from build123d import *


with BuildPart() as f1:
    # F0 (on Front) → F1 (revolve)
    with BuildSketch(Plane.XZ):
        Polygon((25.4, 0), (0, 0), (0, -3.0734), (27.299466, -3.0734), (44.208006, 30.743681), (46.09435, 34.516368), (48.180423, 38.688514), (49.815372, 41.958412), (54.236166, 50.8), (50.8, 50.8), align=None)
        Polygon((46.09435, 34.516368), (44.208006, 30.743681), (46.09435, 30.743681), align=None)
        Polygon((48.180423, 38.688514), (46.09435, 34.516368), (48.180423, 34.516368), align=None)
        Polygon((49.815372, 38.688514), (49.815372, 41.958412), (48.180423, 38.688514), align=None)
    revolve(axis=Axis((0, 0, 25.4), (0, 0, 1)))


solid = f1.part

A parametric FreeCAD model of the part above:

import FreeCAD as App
import Part
import Sketcher

V = App.Vector
Q = App.Units.Quantity

doc = App.newDocument("Part")
body = doc.addObject("PartDesign::Body", "Body")

sketch1 = body.newObject("Sketcher::SketchObject", "Sketch")
sketch1.AttachmentSupport = (doc.getObject("XZ_Plane"), [""])
sketch1.MapMode = "FlatFace"
sketch1.addGeometry(Part.LineSegment(V(25.4, 0, 0), V(0, 0, 0)), False)
sketch1.addGeometry(Part.LineSegment(V(0, 0, 0), V(0, -3.0734, 0)), False)
sketch1.addGeometry(Part.LineSegment(V(0, -3.0734, 0), V(27.299466, -3.0734, 0)), False)
sketch1.addGeometry(Part.LineSegment(V(27.299466, -3.0734, 0), V(44.208006, 30.743681, 0)), False)
sketch1.addGeometry(Part.LineSegment(V(44.208006, 30.743681, 0), V(46.09435, 30.743681, 0)), False)
sketch1.addGeometry(Part.LineSegment(V(46.09435, 30.743681, 0), V(46.09435, 34.516368, 0)), False)
sketch1.addGeometry(Part.LineSegment(V(46.09435, 34.516368, 0), V(48.180423, 34.516368, 0)), False)
sketch1.addGeometry(Part.LineSegment(V(48.180423, 34.516368, 0), V(48.180423, 38.688514, 0)), False)
sketch1.addGeometry(Part.LineSegment(V(48.180423, 38.688514, 0), V(49.815372, 38.688514, 0)), False)
sketch1.addGeometry(Part.LineSegment(V(49.815372, 38.688514, 0), V(49.815372, 41.958412, 0)), False)
sketch1.addGeometry(Part.LineSegment(V(49.815372, 41.958412, 0), V(54.236166, 50.8, 0)), False)
sketch1.addGeometry(Part.LineSegment(V(54.236166, 50.8, 0), V(50.8, 50.8, 0)), False)
sketch1.addGeometry(Part.LineSegment(V(50.8, 50.8, 0), V(25.4, 0, 0)), False)
sketch1.addConstraint(Sketcher.Constraint("Coincident", 0, 2, 1, 1))
sketch1.addConstraint(Sketcher.Constraint("Coincident", 1, 2, 2, 1))
sketch1.addConstraint(Sketcher.Constraint("Coincident", 2, 2, 3, 1))
sketch1.addConstraint(Sketcher.Constraint("Coincident", 3, 2, 4, 1))
sketch1.addConstraint(Sketcher.Constraint("Coincident", 4, 2, 5, 1))
sketch1.addConstraint(Sketcher.Constraint("Coincident", 5, 2, 6, 1))
sketch1.addConstraint(Sketcher.Constraint("Coincident", 6, 2, 7, 1))
sketch1.addConstraint(Sketcher.Constraint("Coincident", 7, 2, 8, 1))
sketch1.addConstraint(Sketcher.Constraint("Coincident", 8, 2, 9, 1))
sketch1.addConstraint(Sketcher.Constraint("Coincident", 9, 2, 10, 1))
sketch1.addConstraint(Sketcher.Constraint("Coincident", 10, 2, 11, 1))
sketch1.addConstraint(Sketcher.Constraint("Coincident", 11, 2, 12, 1))
sketch1.addConstraint(Sketcher.Constraint("Coincident", 12, 2, 0, 1))
sketch1.addConstraint(Sketcher.Constraint("Horizontal", 0))
sketch1.addConstraint(Sketcher.Constraint("Vertical", 1))
sketch1.addConstraint(Sketcher.Constraint("Horizontal", 2))
sketch1.addConstraint(Sketcher.Constraint("Horizontal", 4))
sketch1.addConstraint(Sketcher.Constraint("Vertical", 5))
sketch1.addConstraint(Sketcher.Constraint("Horizontal", 6))
sketch1.addConstraint(Sketcher.Constraint("Vertical", 7))
sketch1.addConstraint(Sketcher.Constraint("Horizontal", 8))
sketch1.addConstraint(Sketcher.Constraint("Vertical", 9))
sketch1.addConstraint(Sketcher.Constraint("Horizontal", 11))
sketch1.addConstraint(Sketcher.Constraint("Coincident", 0, 2, -1, 1))
sketch1.addConstraint(Sketcher.Constraint("Parallel", 3, 10))
sketch1.addConstraint(Sketcher.Constraint("Parallel", 10, 12))
sketch1.addConstraint(Sketcher.Constraint("DistanceX", 0, 2, 0, 1, Q("1 in")))
sketch1.addConstraint(Sketcher.Constraint("DistanceY", -1, 1, 10, 2, Q("2 in")))
sketch1.addConstraint(Sketcher.Constraint("DistanceX", -1, 1, 11, 2, Q("2 in")))
sketch1.addConstraint(Sketcher.Constraint("DistanceY", 1, 2, 1, 1, Q("0.121 in")))
sketch1.addConstraint(Sketcher.Constraint("DistanceY", 9, 1, 9, 2, 3.269898))
sketch1.addConstraint(Sketcher.Constraint("DistanceX", 8, 1, 8, 2, 1.634949))
sketch1.addConstraint(Sketcher.Constraint("DistanceX", 2, 1, 2, 2, 27.299466))
sketch1.addConstraint(Sketcher.Constraint("DistanceX", 4, 1, 4, 2, 1.886344))
sketch1.addConstraint(Sketcher.Constraint("DistanceX", 6, 1, 6, 2, 2.086073))
sketch1.addConstraint(Sketcher.Constraint("DistanceX", 11, 2, 11, 1, 3.436166))
sketch1.addConstraint(Sketcher.Constraint("DistanceY", 5, 1, 5, 2, 3.772687))
sketch1.addConstraint(Sketcher.Constraint("DistanceY", -1, 1, 3, 2, 30.743681))
revolution = body.newObject("PartDesign::Revolution", "Revolution")
revolution.Profile = sketch1
revolution.ReferenceAxis = (sketch1, ["V_Axis"])
revolution.Angle = 360

doc.recompute()
